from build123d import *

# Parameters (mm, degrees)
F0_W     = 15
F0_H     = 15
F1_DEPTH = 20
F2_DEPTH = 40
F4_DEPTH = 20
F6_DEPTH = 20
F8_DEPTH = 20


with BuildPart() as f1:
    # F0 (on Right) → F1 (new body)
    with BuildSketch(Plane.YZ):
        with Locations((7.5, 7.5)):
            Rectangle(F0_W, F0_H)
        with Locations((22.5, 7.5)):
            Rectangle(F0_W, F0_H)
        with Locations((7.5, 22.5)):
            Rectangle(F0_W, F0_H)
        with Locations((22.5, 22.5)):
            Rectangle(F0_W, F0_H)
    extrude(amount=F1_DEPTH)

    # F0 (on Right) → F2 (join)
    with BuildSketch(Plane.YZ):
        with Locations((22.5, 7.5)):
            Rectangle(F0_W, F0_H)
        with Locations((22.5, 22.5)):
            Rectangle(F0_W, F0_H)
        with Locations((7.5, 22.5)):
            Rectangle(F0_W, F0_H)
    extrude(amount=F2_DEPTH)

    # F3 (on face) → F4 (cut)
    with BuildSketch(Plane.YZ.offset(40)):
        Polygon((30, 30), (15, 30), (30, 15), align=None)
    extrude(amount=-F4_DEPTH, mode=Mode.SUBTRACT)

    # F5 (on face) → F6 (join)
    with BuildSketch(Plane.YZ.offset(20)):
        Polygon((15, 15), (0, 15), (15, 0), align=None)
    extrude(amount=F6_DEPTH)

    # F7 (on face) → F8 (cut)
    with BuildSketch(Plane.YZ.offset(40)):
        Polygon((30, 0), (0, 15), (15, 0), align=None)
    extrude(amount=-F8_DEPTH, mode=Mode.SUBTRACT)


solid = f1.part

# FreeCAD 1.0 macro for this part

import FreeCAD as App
import Part
import Sketcher
Q = App.Units.Quantity

doc = App.newDocument("Part")
body = doc.addObject("PartDesign::Body", "Body")

# Sketch on YZ plane
sketch1 = body.newObject("Sketcher::SketchObject", "Sketch")
sketch1.AttachmentSupport = (doc.getObject("YZ_Plane"), [""])
sketch1.MapMode = "FlatFace"
sketch1.addGeometry(Part.LineSegment(App.Vector(0, 0, 0), App.Vector(30, 0, 0)), False)
sketch1.addGeometry(Part.LineSegment(App.Vector(30, 0, 0), App.Vector(30, 30, 0)), False)
sketch1.addGeometry(Part.LineSegment(App.Vector(30, 30, 0), App.Vector(0, 30, 0)), False)
sketch1.addGeometry(Part.LineSegment(App.Vector(0, 30, 0), App.Vector(0, 0, 0)), False)
sketch1.addConstraint(Sketcher.Constraint("Coincident", 0, 2, 1, 1))
sketch1.addConstraint(Sketcher.Constraint("Coincident", 1, 2, 2, 1))
sketch1.addConstraint(Sketcher.Constraint("Coincident", 2, 2, 3, 1))
sketch1.addConstraint(Sketcher.Constraint("Coincident", 3, 2, 0, 1))
sketch1.addConstraint(Sketcher.Constraint("Horizontal", 0))
sketch1.addConstraint(Sketcher.Constraint("Vertical", 1))
sketch1.addConstraint(Sketcher.Constraint("Horizontal", 2))
sketch1.addConstraint(Sketcher.Constraint("Vertical", 3))
sketch1.addConstraint(Sketcher.Constraint("Coincident", 3, 2, -1, 1))
sketch1.addConstraint(Sketcher.Constraint("Equal", 2, 1))
sketch1.addConstraint(Sketcher.Constraint("DistanceX", 0, 1, 0, 2, Q("30 mm")))
pad1 = body.newObject("PartDesign::Pad", "Pad")
pad1.Profile = sketch1
pad1.Length = 20

# Sketch on YZ plane
sketch2 = body.newObject("Sketcher::SketchObject", "Sketch001")
sketch2.AttachmentSupport = (doc.getObject("YZ_Plane"), [""])
sketch2.MapMode = "FlatFace"
sketch2.addGeometry(Part.LineSegment(App.Vector(15, 0, 0), App.Vector(30, 0, 0)), False)
sketch2.addGeometry(Part.LineSegment(App.Vector(30, 0, 0), App.Vector(30, 30, 0)), False)
sketch2.addGeometry(Part.LineSegment(App.Vector(30, 30, 0), App.Vector(0, 30, 0)), False)
sketch2.addGeometry(Part.LineSegment(App.Vector(0, 30, 0), App.Vector(0, 15, 0)), False)
sketch2.addGeometry(Part.LineSegment(App.Vector(0, 15, 0), App.Vector(15, 15, 0)), False)
sketch2.addGeometry(Part.LineSegment(App.Vector(15, 15, 0), App.Vector(15, 0, 0)), False)
sketch2.addConstraint(Sketcher.Constraint("Coincident", 0, 2, 1, 1))
sketch2.addConstraint(Sketcher.Constraint("Coincident", 1, 2, 2, 1))
sketch2.addConstraint(Sketcher.Constraint("Coincident", 2, 2, 3, 1))
sketch2.addConstraint(Sketcher.Constraint("Coincident", 3, 2, 4, 1))
sketch2.addConstraint(Sketcher.Constraint("Coincident", 4, 2, 5, 1))
sketch2.addConstraint(Sketcher.Constraint("Coincident", 5, 2, 0, 1))
sketch2.addConstraint(Sketcher.Constraint("Horizontal", 0))
sketch2.addConstraint(Sketcher.Constraint("Vertical", 1))
sketch2.addConstraint(Sketcher.Constraint("Horizontal", 2))
sketch2.addConstraint(Sketcher.Constraint("Vertical", 3))
sketch2.addConstraint(Sketcher.Constraint("Horizontal", 4))
sketch2.addConstraint(Sketcher.Constraint("Vertical", 5))
sketch2.addConstraint(Sketcher.Constraint("PointOnObject", 0, 2, -1))
sketch2.addConstraint(Sketcher.Constraint("PointOnObject", 2, 2, -2))
sketch2.addConstraint(Sketcher.Constraint("Equal", 0, 4))
sketch2.addConstraint(Sketcher.Constraint("Equal", 2, 1))
sketch2.addConstraint(Sketcher.Constraint("Equal", 4, 3))
sketch2.addConstraint(Sketcher.Constraint("DistanceX", 0, 1, 0, 2, Q("15 mm")))
pad2 = body.newObject("PartDesign::Pad", "Pad001")
pad2.Profile = sketch2
pad2.Length = 40

# Sketch on YZ plane
sketch3 = body.newObject("Sketcher::SketchObject", "Sketch002")
sketch3.AttachmentSupport = (doc.getObject("YZ_Plane"), [""])
sketch3.MapMode = "FlatFace"
sketch3.AttachmentOffset = App.Placement(App.Vector(0, 0, 40), App.Rotation())
sketch3.addGeometry(Part.LineSegment(App.Vector(30, 30, 0), App.Vector(15, 30, 0)), False)
sketch3.addGeometry(Part.LineSegment(App.Vector(15, 30, 0), App.Vector(30, 15, 0)), False)
sketch3.addGeometry(Part.LineSegment(App.Vector(30, 15, 0), App.Vector(30, 30, 0)), False)
sketch3.addConstraint(Sketcher.Constraint("Coincident", 0, 2, 1, 1))
sketch3.addConstraint(Sketcher.Constraint("Coincident", 1, 2, 2, 1))
sketch3.addConstraint(Sketcher.Constraint("Coincident", 2, 2, 0, 1))
sketch3.addConstraint(Sketcher.Constraint("Horizontal", 0))
sketch3.addConstraint(Sketcher.Constraint("Vertical", 2))
sketch3.addConstraint(Sketcher.Constraint("Equal", 0, 2))
sketch3.addConstraint(Sketcher.Constraint("DistanceX", 0, 2, 0, 1, Q("15 mm")))
sketch3.addConstraint(Sketcher.Constraint("DistanceX", -1, 1, 0, 2, Q("15 mm")))
sketch3.addConstraint(Sketcher.Constraint("DistanceY", -1, 1, 0, 2, Q("30 mm")))
pocket1 = body.newObject("PartDesign::Pocket", "Pocket")
pocket1.Profile = sketch3
pocket1.Length = 20

# Sketch on YZ plane
sketch4 = body.newObject("Sketcher::SketchObject", "Sketch003")
sketch4.AttachmentSupport = (doc.getObject("YZ_Plane"), [""])
sketch4.MapMode = "FlatFace"
sketch4.AttachmentOffset = App.Placement(App.Vector(0, 0, 20), App.Rotation())
sketch4.addGeometry(Part.LineSegment(App.Vector(15, 15, 0), App.Vector(0, 15, 0)), False)
sketch4.addGeometry(Part.LineSegment(App.Vector(0, 15, 0), App.Vector(15, 0, 0)), False)
sketch4.addGeometry(Part.LineSegment(App.Vector(15, 0, 0), App.Vector(15, 15, 0)), False)
sketch4.addConstraint(Sketcher.Constraint("Coincident", 0, 2, 1, 1))
sketch4.addConstraint(Sketcher.Constraint("Coincident", 1, 2, 2, 1))
sketch4.addConstraint(Sketcher.Constraint("Coincident", 2, 2, 0, 1))
sketch4.addConstraint(Sketcher.Constraint("Horizontal", 0))
sketch4.addConstraint(Sketcher.Constraint("Vertical", 2))
sketch4.addConstraint(Sketcher.Constraint("PointOnObject", 0, 2, -2))
sketch4.addConstraint(Sketcher.Constraint("PointOnObject", 1, 2, -1))
sketch4.addConstraint(Sketcher.Constraint("Equal", 0, 2))
sketch4.addConstraint(Sketcher.Constraint("DistanceX", 0, 2, 0, 1, Q("15 mm")))
pad3 = body.newObject("PartDesign::Pad", "Pad002")
pad3.Profile = sketch4
pad3.Length = 20

# Sketch on YZ plane
sketch5 = body.newObject("Sketcher::SketchObject", "Sketch004")
sketch5.AttachmentSupport = (doc.getObject("YZ_Plane"), [""])
sketch5.MapMode = "FlatFace"
sketch5.AttachmentOffset = App.Placement(App.Vector(0, 0, 40), App.Rotation())
sketch5.addGeometry(Part.LineSegment(App.Vector(30, 0, 0), App.Vector(0, 15, 0)), False)
sketch5.addGeometry(Part.LineSegment(App.Vector(0, 15, 0), App.Vector(15, 0, 0)), False)
sketch5.addGeometry(Part.LineSegment(App.Vector(15, 0, 0), App.Vector(30, 0, 0)), False)
sketch5.addConstraint(Sketcher.Constraint("Coincident", 0, 2, 1, 1))
sketch5.addConstraint(Sketcher.Constraint("Coincident", 1, 2, 2, 1))
sketch5.addConstraint(Sketcher.Constraint("Coincident", 2, 2, 0, 1))
sketch5.addConstraint(Sketcher.Constraint("Horizontal", 2))
sketch5.addConstraint(Sketcher.Constraint("PointOnObject", 0, 2, -2))
sketch5.addConstraint(Sketcher.Constraint("PointOnObject", 1, 2, -1))
sketch5.addConstraint(Sketcher.Constraint("DistanceX", 2, 1, 2, 2, Q("15 mm")))
sketch5.addConstraint(Sketcher.Constraint("Angle", 1, Q("-45 deg")))
sketch5.addConstraint(Sketcher.Constraint("DistanceY", -1, 1, 0, 2, Q("15 mm")))
pocket2 = body.newObject("PartDesign::Pocket", "Pocket001")
pocket2.Profile = sketch5
pocket2.Length = 20

doc.recompute()
